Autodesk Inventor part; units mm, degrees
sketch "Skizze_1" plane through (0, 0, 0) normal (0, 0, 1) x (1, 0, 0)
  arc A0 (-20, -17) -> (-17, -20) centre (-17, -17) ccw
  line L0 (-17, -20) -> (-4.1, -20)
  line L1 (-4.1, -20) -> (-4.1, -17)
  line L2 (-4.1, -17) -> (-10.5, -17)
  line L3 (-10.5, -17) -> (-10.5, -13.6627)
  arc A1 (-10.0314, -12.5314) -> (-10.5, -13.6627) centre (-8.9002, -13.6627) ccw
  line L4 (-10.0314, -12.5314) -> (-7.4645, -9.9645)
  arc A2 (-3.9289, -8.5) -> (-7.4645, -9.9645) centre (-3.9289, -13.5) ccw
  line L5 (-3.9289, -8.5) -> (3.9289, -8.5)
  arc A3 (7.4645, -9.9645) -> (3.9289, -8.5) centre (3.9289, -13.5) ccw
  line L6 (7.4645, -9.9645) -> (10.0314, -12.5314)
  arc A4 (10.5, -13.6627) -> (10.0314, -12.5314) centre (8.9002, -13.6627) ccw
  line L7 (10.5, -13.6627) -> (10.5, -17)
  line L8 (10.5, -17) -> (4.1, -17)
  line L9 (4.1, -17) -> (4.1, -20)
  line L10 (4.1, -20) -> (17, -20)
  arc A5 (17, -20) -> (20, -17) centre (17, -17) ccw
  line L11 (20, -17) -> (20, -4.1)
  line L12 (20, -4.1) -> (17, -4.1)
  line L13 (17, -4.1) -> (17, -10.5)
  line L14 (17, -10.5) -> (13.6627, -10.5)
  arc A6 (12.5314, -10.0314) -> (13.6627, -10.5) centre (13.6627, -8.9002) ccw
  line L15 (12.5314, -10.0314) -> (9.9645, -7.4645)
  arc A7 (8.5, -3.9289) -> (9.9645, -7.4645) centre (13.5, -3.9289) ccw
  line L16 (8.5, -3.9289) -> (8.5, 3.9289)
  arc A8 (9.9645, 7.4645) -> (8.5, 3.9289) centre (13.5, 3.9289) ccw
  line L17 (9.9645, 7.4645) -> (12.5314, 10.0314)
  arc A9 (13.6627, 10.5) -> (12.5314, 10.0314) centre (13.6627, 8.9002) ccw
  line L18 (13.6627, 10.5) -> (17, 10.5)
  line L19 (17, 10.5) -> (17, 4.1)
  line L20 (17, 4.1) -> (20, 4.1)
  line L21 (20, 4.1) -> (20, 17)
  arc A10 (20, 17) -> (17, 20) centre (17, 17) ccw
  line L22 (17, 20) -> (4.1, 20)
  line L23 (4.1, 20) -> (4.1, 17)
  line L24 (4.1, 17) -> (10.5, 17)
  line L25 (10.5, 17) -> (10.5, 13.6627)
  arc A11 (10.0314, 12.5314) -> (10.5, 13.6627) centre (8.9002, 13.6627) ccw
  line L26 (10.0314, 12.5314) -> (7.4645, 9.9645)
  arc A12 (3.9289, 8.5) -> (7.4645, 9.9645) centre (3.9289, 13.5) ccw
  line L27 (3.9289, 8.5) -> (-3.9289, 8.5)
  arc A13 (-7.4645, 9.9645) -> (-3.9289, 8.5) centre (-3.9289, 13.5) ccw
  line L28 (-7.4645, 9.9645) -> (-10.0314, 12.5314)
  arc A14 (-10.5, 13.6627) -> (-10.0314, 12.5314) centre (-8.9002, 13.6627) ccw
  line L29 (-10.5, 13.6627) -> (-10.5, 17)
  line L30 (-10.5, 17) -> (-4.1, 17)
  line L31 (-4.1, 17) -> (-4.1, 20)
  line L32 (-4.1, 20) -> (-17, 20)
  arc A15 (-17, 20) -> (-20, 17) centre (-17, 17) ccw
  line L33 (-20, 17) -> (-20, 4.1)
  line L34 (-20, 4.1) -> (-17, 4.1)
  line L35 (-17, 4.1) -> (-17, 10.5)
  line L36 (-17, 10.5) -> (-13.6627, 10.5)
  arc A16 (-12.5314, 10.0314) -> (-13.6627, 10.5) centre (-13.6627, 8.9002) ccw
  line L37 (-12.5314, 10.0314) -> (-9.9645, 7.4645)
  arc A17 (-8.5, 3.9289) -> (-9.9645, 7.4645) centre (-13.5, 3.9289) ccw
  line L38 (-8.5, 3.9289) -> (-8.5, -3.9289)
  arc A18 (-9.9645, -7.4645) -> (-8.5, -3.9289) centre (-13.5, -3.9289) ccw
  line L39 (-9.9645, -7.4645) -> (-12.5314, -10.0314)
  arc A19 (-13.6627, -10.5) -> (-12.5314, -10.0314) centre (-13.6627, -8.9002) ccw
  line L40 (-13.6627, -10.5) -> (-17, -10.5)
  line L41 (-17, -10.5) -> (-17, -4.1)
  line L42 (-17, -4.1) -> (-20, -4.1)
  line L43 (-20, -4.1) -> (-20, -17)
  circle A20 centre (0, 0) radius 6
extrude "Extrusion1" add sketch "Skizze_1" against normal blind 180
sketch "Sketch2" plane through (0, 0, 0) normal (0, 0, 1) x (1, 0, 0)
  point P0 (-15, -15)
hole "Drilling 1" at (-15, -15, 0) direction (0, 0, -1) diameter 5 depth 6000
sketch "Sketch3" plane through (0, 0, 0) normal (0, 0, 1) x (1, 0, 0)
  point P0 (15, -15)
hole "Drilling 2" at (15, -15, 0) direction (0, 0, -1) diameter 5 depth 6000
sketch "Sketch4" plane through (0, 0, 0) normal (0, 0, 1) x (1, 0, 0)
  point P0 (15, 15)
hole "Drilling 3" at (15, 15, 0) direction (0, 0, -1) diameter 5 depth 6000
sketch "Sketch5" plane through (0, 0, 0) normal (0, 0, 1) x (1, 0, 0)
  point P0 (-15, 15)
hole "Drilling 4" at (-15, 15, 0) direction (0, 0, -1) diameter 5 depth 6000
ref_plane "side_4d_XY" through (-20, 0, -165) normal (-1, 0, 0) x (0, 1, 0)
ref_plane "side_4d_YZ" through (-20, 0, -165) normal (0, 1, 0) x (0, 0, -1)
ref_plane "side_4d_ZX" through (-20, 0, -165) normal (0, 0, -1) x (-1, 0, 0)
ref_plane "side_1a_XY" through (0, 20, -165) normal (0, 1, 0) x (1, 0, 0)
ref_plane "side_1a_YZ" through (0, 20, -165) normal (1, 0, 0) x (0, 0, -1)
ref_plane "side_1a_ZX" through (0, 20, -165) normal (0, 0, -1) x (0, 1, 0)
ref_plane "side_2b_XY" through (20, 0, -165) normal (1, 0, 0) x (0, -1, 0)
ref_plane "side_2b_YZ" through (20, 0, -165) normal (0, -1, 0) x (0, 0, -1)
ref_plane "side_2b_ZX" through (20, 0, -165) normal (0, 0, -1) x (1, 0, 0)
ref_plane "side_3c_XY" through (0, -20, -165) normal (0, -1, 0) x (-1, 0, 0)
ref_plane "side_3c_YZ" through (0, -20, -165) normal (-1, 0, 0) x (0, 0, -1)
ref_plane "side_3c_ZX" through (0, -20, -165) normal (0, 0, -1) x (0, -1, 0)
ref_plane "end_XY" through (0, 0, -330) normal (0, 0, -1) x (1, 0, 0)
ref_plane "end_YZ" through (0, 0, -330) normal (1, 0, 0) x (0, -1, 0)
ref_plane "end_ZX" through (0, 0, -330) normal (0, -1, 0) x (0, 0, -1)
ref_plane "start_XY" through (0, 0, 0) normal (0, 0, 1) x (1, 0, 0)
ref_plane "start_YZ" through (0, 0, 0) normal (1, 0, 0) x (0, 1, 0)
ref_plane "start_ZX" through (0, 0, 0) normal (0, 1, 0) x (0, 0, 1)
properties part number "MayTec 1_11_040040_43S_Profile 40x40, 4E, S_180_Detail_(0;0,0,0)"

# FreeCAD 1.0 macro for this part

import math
import FreeCAD as App
import Part
import Sketcher

V = App.Vector

doc = App.newDocument("Part")
body = doc.addObject("PartDesign::Body", "Body")

sketch1 = doc.addObject("Sketcher::SketchObject", "Sketch")
body.addObject(sketch1)
sketch1.AttachmentSupport = (doc.XY_Plane, [""])
sketch1.MapMode = "FlatFace"
sketch1.addGeometry([
    Part.LineSegment(V(-20, -4.1, 0), V(-20, -17, 0)),
    Part.ArcOfCircle(Part.Circle(V(-17, -17, 0), V(0, 0, 1), 3), math.radians(180), math.radians(270)),
    Part.LineSegment(V(-17, -20, 0), V(-4.1, -20, 0)),
    Part.LineSegment(V(-4.1, -20, 0), V(-4.1, -17, 0)),
    Part.LineSegment(V(-4.1, -17, 0), V(-10.5, -17, 0)),
    Part.LineSegment(V(-10.5, -17, 0), V(-10.5, -13.7, 0)),
    Part.ArcOfCircle(Part.Circle(V(-8.9, -13.7, 0), V(0, 0, 1), 1.6), math.radians(135), math.radians(180)),
    Part.LineSegment(V(-10, -12.5, 0), V(-7.5, -10, 0)),
    Part.ArcOfCircle(Part.Circle(V(-3.9, -13.5, 0), V(0, 0, 1), 5), math.radians(90), math.radians(135)),
    Part.LineSegment(V(-3.9, -8.5, 0), V(3.9, -8.5, 0)),
    Part.ArcOfCircle(Part.Circle(V(3.9, -13.5, 0), V(0, 0, 1), 5), math.radians(45), math.radians(90)),
    Part.LineSegment(V(7.5, -10, 0), V(10, -12.5, 0)),
    Part.ArcOfCircle(Part.Circle(V(8.9, -13.7, 0), V(0, 0, 1), 1.6), math.radians(0), math.radians(45)),
    Part.LineSegment(V(10.5, -13.7, 0), V(10.5, -17, 0)),
    Part.LineSegment(V(10.5, -17, 0), V(4.1, -17, 0)),
    Part.LineSegment(V(4.1, -17, 0), V(4.1, -20, 0)),
    Part.LineSegment(V(4.1, -20, 0), V(17, -20, 0)),
    Part.ArcOfCircle(Part.Circle(V(17, -17, 0), V(0, 0, 1), 3), math.radians(-90), math.radians(0)),
    Part.LineSegment(V(20, -17, 0), V(20, -4.1, 0)),
    Part.LineSegment(V(20, -4.1, 0), V(17, -4.1, 0)),
    Part.LineSegment(V(17, -4.1, 0), V(17, -10.5, 0)),
    Part.LineSegment(V(17, -10.5, 0), V(13.7, -10.5, 0)),
    Part.ArcOfCircle(Part.Circle(V(13.7, -8.9, 0), V(0, 0, 1), 1.6), math.radians(-135), math.radians(-90)),
    Part.LineSegment(V(12.5, -10, 0), V(10, -7.5, 0)),
    Part.ArcOfCircle(Part.Circle(V(13.5, -3.9, 0), V(0, 0, 1), 5), math.radians(180), math.radians(225)),
    Part.LineSegment(V(8.5, -3.9, 0), V(8.5, 3.9, 0)),
    Part.ArcOfCircle(Part.Circle(V(13.5, 3.9, 0), V(0, 0, 1), 5), math.radians(135), math.radians(180)),
    Part.LineSegment(V(10, 7.5, 0), V(12.5, 10, 0)),
    Part.ArcOfCircle(Part.Circle(V(13.7, 8.9, 0), V(0, 0, 1), 1.6), math.radians(90), math.radians(135)),
    Part.LineSegment(V(13.7, 10.5, 0), V(17, 10.5, 0)),
    Part.LineSegment(V(17, 10.5, 0), V(17, 4.1, 0)),
    Part.LineSegment(V(17, 4.1, 0), V(20, 4.1, 0)),
    Part.LineSegment(V(20, 4.1, 0), V(20, 17, 0)),
    Part.ArcOfCircle(Part.Circle(V(17, 17, 0), V(0, 0, 1), 3), math.radians(0), math.radians(90)),
    Part.LineSegment(V(17, 20, 0), V(4.1, 20, 0)),
    Part.LineSegment(V(4.1, 20, 0), V(4.1, 17, 0)),
    Part.LineSegment(V(4.1, 17, 0), V(10.5, 17, 0)),
    Part.LineSegment(V(10.5, 17, 0), V(10.5, 13.7, 0)),
    Part.ArcOfCircle(Part.Circle(V(8.9, 13.7, 0), V(0, 0, 1), 1.6), math.radians(-45), math.radians(0)),
    Part.LineSegment(V(10, 12.5, 0), V(7.5, 10, 0)),
    Part.ArcOfCircle(Part.Circle(V(3.9, 13.5, 0), V(0, 0, 1), 5), math.radians(-90), math.radians(-45)),
    Part.LineSegment(V(3.9, 8.5, 0), V(-3.9, 8.5, 0)),
    Part.ArcOfCircle(Part.Circle(V(-3.9, 13.5, 0), V(0, 0, 1), 5), math.radians(-135), math.radians(-90)),
    Part.LineSegment(V(-7.5, 10, 0), V(-10, 12.5, 0)),
    Part.ArcOfCircle(Part.Circle(V(-8.9, 13.7, 0), V(0, 0, 1), 1.6), math.radians(180), math.radians(225)),
    Part.LineSegment(V(-10.5, 13.7, 0), V(-10.5, 17, 0)),
    Part.LineSegment(V(-10.5, 17, 0), V(-4.1, 17, 0)),
    Part.LineSegment(V(-4.1, 17, 0), V(-4.1, 20, 0)),
    Part.LineSegment(V(-4.1, 20, 0), V(-17, 20, 0)),
    Part.ArcOfCircle(Part.Circle(V(-17, 17, 0), V(0, 0, 1), 3), math.radians(90), math.radians(180)),
    Part.LineSegment(V(-20, 17, 0), V(-20, 4.1, 0)),
    Part.LineSegment(V(-20, 4.1, 0), V(-17, 4.1, 0)),
    Part.LineSegment(V(-17, 4.1, 0), V(-17, 10.5, 0)),
    Part.LineSegment(V(-17, 10.5, 0), V(-13.7, 10.5, 0)),
    Part.ArcOfCircle(Part.Circle(V(-13.7, 8.9, 0), V(0, 0, 1), 1.6), math.radians(45), math.radians(90)),
    Part.LineSegment(V(-12.5, 10, 0), V(-10, 7.5, 0)),
    Part.ArcOfCircle(Part.Circle(V(-13.5, 3.9, 0), V(0, 0, 1), 5), math.radians(0), math.radians(45)),
    Part.LineSegment(V(-8.5, 3.9, 0), V(-8.5, -3.9, 0)),
    Part.ArcOfCircle(Part.Circle(V(-13.5, -3.9, 0), V(0, 0, 1), 5), math.radians(-45), math.radians(0)),
    Part.LineSegment(V(-10, -7.5, 0), V(-12.5, -10, 0)),
    Part.ArcOfCircle(Part.Circle(V(-13.7, -8.9, 0), V(0, 0, 1), 1.6), math.radians(-90), math.radians(-45)),
    Part.LineSegment(V(-13.7, -10.5, 0), V(-17, -10.5, 0)),
    Part.LineSegment(V(-17, -10.5, 0), V(-17, -4.1, 0)),
    Part.LineSegment(V(-17, -4.1, 0), V(-20, -4.1, 0)),
    Part.Circle(V(0, 0, 0), V(0, 0, 1), 6),
], False)
sketch1.addConstraint([
    Sketcher.Constraint("Tangent", 0, 2, 1, 1),
    Sketcher.Constraint("Tangent", 1, 2, 2, 1),
    Sketcher.Constraint("Coincident", 2, 2, 3, 1),
    Sketcher.Constraint("Coincident", 3, 2, 4, 1),
    Sketcher.Constraint("Coincident", 4, 2, 5, 1),
    Sketcher.Constraint("Tangent", 5, 2, 6, 2),
    Sketcher.Constraint("Tangent", 6, 1, 7, 1),
    Sketcher.Constraint("Tangent", 7, 2, 8, 2),
    Sketcher.Constraint("Tangent", 8, 1, 9, 1),
    Sketcher.Constraint("Tangent", 9, 2, 10, 2),
    Sketcher.Constraint("Tangent", 10, 1, 11, 1),
    Sketcher.Constraint("Tangent", 11, 2, 12, 2),
    Sketcher.Constraint("Tangent", 12, 1, 13, 1),
    Sketcher.Constraint("Coincident", 13, 2, 14, 1),
    Sketcher.Constraint("Coincident", 14, 2, 15, 1),
    Sketcher.Constraint("Coincident", 15, 2, 16, 1),
    Sketcher.Constraint("Tangent", 16, 2, 17, 1),
    Sketcher.Constraint("Tangent", 17, 2, 18, 1),
    Sketcher.Constraint("Coincident", 18, 2, 19, 1),
    Sketcher.Constraint("Coincident", 19, 2, 20, 1),
    Sketcher.Constraint("Coincident", 20, 2, 21, 1),
    Sketcher.Constraint("Tangent", 21, 2, 22, 2),
    Sketcher.Constraint("Tangent", 22, 1, 23, 1),
    Sketcher.Constraint("Tangent", 23, 2, 24, 2),
    Sketcher.Constraint("Tangent", 24, 1, 25, 1),
    Sketcher.Constraint("Tangent", 25, 2, 26, 2),
    Sketcher.Constraint("Tangent", 26, 1, 27, 1),
    Sketcher.Constraint("Tangent", 27, 2, 28, 2),
    Sketcher.Constraint("Tangent", 28, 1, 29, 1),
    Sketcher.Constraint("Coincident", 29, 2, 30, 1),
    Sketcher.Constraint("Coincident", 30, 2, 31, 1),
    Sketcher.Constraint("Coincident", 31, 2, 32, 1),
    Sketcher.Constraint("Tangent", 32, 2, 33, 1),
    Sketcher.Constraint("Tangent", 33, 2, 34, 1),
    Sketcher.Constraint("Coincident", 34, 2, 35, 1),
    Sketcher.Constraint("Coincident", 35, 2, 36, 1),
    Sketcher.Constraint("Coincident", 36, 2, 37, 1),
    Sketcher.Constraint("Tangent", 37, 2, 38, 2),
    Sketcher.Constraint("Tangent", 38, 1, 39, 1),
    Sketcher.Constraint("Tangent", 39, 2, 40, 2),
    Sketcher.Constraint("Tangent", 40, 1, 41, 1),
    Sketcher.Constraint("Tangent", 41, 2, 42, 2),
    Sketcher.Constraint("Tangent", 42, 1, 43, 1),
    Sketcher.Constraint("Tangent", 43, 2, 44, 2),
    Sketcher.Constraint("Tangent", 44, 1, 45, 1),
    Sketcher.Constraint("Coincident", 45, 2, 46, 1),
    Sketcher.Constraint("Coincident", 46, 2, 47, 1),
    Sketcher.Constraint("Coincident", 47, 2, 48, 1),
    Sketcher.Constraint("Tangent", 48, 2, 49, 1),
    Sketcher.Constraint("Tangent", 49, 2, 50, 1),
    Sketcher.Constraint("Coincident", 50, 2, 51, 1),
    Sketcher.Constraint("Coincident", 51, 2, 52, 1),
    Sketcher.Constraint("Coincident", 52, 2, 53, 1),
    Sketcher.Constraint("Tangent", 53, 2, 54, 2),
    Sketcher.Constraint("Tangent", 54, 1, 55, 1),
    Sketcher.Constraint("Tangent", 55, 2, 56, 2),
    Sketcher.Constraint("Tangent", 56, 1, 57, 1),
    Sketcher.Constraint("Tangent", 57, 2, 58, 2),
    Sketcher.Constraint("Tangent", 58, 1, 59, 1),
    Sketcher.Constraint("Tangent", 59, 2, 60, 2),
    Sketcher.Constraint("Tangent", 60, 1, 61, 1),
    Sketcher.Constraint("Coincident", 61, 2, 62, 1),
    Sketcher.Constraint("Coincident", 62, 2, 63, 1),
    Sketcher.Constraint("Coincident", 63, 2, 0, 1),
    Sketcher.Constraint("Vertical", 0),
    Sketcher.Constraint("Horizontal", 2),
    Sketcher.Constraint("Vertical", 3),
    Sketcher.Constraint("Horizontal", 4),
    Sketcher.Constraint("Vertical", 5),
    Sketcher.Constraint("Horizontal", 9),
    Sketcher.Constraint("Vertical", 13),
    Sketcher.Constraint("Horizontal", 14),
    Sketcher.Constraint("Vertical", 15),
    Sketcher.Constraint("Horizontal", 16),
    Sketcher.Constraint("Vertical", 18),
    Sketcher.Constraint("Horizontal", 19),
    Sketcher.Constraint("Vertical", 20),
    Sketcher.Constraint("Horizontal", 21),
    Sketcher.Constraint("Vertical", 25),
    Sketcher.Constraint("Horizontal", 29),
    Sketcher.Constraint("Vertical", 30),
    Sketcher.Constraint("Horizontal", 31),
    Sketcher.Constraint("Vertical", 32),
    Sketcher.Constraint("Horizontal", 34),
    Sketcher.Constraint("Vertical", 35),
    Sketcher.Constraint("Horizontal", 36),
    Sketcher.Constraint("Vertical", 37),
    Sketcher.Constraint("Horizontal", 41),
    Sketcher.Constraint("Vertical", 45),
    Sketcher.Constraint("Horizontal", 46),
    Sketcher.Constraint("Vertical", 47),
    Sketcher.Constraint("Horizontal", 48),
    Sketcher.Constraint("Vertical", 50),
    Sketcher.Constraint("Horizontal", 51),
    Sketcher.Constraint("Vertical", 52),
    Sketcher.Constraint("Horizontal", 53),
    Sketcher.Constraint("Vertical", 57),
    Sketcher.Constraint("Horizontal", 61),
    Sketcher.Constraint("Vertical", 62),
    Sketcher.Constraint("Horizontal", 63),
    Sketcher.Constraint("Coincident", 64, 3, -1, 1),
    Sketcher.Constraint("Equal", 8, 10),
    Sketcher.Constraint("Equal", 6, 12),
    Sketcher.Constraint("Equal", 1, 17),
    Sketcher.Constraint("Equal", 12, 22),
    Sketcher.Constraint("Equal", 10, 24),
    Sketcher.Constraint("Equal", 24, 26),
    Sketcher.Constraint("Equal", 22, 28),
    Sketcher.Constraint("Equal", 17, 33),
    Sketcher.Constraint("Equal", 28, 38),
    Sketcher.Constraint("Equal", 26, 40),
    Sketcher.Constraint("Equal", 40, 42),
    Sketcher.Constraint("Equal", 38, 44),
    Sketcher.Constraint("Equal", 33, 49),
    Sketcher.Constraint("Equal", 44, 54),
    Sketcher.Constraint("Equal", 42, 56),
    Sketcher.Constraint("Equal", 56, 58),
    Sketcher.Constraint("Equal", 54, 60),
    Sketcher.Constraint("Symmetric", 1, 3, 33, 3, -1, 1),
    Sketcher.Constraint("Symmetric", 6, 3, 38, 3, -1, 1),
    Sketcher.Constraint("Symmetric", 8, 3, 40, 3, -1, 1),
    Sketcher.Constraint("Symmetric", 12, 3, 44, 3, -1, 1),
    Sketcher.Constraint("Symmetric", 17, 3, 49, 3, -1, 1),
    Sketcher.Constraint("Symmetric", 22, 3, 54, 3, -1, 1),
    Sketcher.Constraint("Symmetric", 24, 3, 56, 3, -1, 1),
    Sketcher.Constraint("Symmetric", 28, 3, 60, 3, -1, 1),
    Sketcher.Constraint("Symmetric", 3, 2, 35, 2, -1, 1),
    Sketcher.Constraint("Symmetric", 14, 2, 46, 2, -1, 1),
    Sketcher.Constraint("Symmetric", 19, 2, 51, 2, -1, 1),
    Sketcher.Constraint("Symmetric", 30, 2, 62, 2, -1, 1),
    Sketcher.Constraint("Symmetric", 6, 3, 12, 3, -2),
    Sketcher.Constraint("Symmetric", 1, 3, 17, 3, -2),
    Sketcher.Constraint("Symmetric", 28, 3, 54, 3, -2),
    Sketcher.Constraint("Symmetric", 3, 2, 14, 2, -2),
    Sketcher.Constraint("Symmetric", 30, 2, 51, 2, -2),
    Sketcher.Constraint("Perpendicular", 7, 11),
    Sketcher.Constraint("Parallel", 11, 23),
    Sketcher.Constraint("Perpendicular", 23, 27),
    Sketcher.Constraint("Perpendicular", 39, 43),
    Sketcher.Constraint("Perpendicular", 55, 59),
    Sketcher.Constraint("Horizontal", 26, 3, 56, 3),
    Sketcher.Constraint("Horizontal", 0, 2, 3, 2),
    Sketcher.Constraint("Vertical", 16, 2, 19, 2),
    Sketcher.Constraint("Equal", 48, 0),
    Sketcher.Constraint("Equal", 61, 5),
    Sketcher.Constraint("Equal", 46, 20),
    Sketcher.Constraint("Equal", 41, 25),
    Sketcher.Constraint("Equal", 11, 23),
    Sketcher.Constraint("Diameter", 64, 12.0),
    Sketcher.Constraint("Radius", 1, 3.0),
    Sketcher.Constraint("Radius", 8, 5.0),
    Sketcher.Constraint("DistanceX", 2, 1, 2, 2, 12.9),
    Sketcher.Constraint("DistanceX", 4, 2, 4, 1, 6.4),
    Sketcher.Constraint("DistanceX", 1, 3, -1, 1, 17.0),
    Sketcher.Constraint("DistanceY", 8, 3, -1, 1, 13.5),
    Sketcher.Constraint("Radius", 6, 1.5998),
    Sketcher.Constraint("DistanceX", 9, 1, 9, 2, 7.8578),
])
pad1 = doc.addObject("PartDesign::Pad", "Pad")
body.addObject(pad1)
pad1.Profile = sketch1
pad1.Length = 180
pad1.Reversed = True

sketch2 = doc.addObject("Sketcher::SketchObject", "Sketch001")
body.addObject(sketch2)
sketch2.AttachmentSupport = (doc.XY_Plane, [""])
sketch2.MapMode = "FlatFace"
sketch2.addGeometry(Part.Circle(V(-15, -15, 0), V(0, 0, 1), 2.5), False)
sketch2.addConstraint([
    Sketcher.Constraint("Diameter", 0, 5.0),
    Sketcher.Constraint("DistanceX", 0, 3, -1, 1, 15.0),
    Sketcher.Constraint("DistanceY", 0, 3, -1, 1, 15.0),
])
doc.recompute()
hole = doc.addObject("PartDesign::Hole", "Hole")
body.addObject(hole)
hole.Profile = sketch2
hole.ThreadType = "None"
hole.Diameter = 5
hole.DepthType = "Dimension"
hole.Depth = 6000
hole.DrillPoint = "Flat"

sketch3 = doc.addObject("Sketcher::SketchObject", "Sketch002")
body.addObject(sketch3)
sketch3.AttachmentSupport = (doc.XY_Plane, [""])
sketch3.MapMode = "FlatFace"
sketch3.addGeometry(Part.Circle(V(15, -15, 0), V(0, 0, 1), 2.5), False)
sketch3.addConstraint([
    Sketcher.Constraint("Diameter", 0, 5.0),
    Sketcher.Constraint("DistanceX", -1, 1, 0, 3, 15.0),
    Sketcher.Constraint("DistanceY", 0, 3, -1, 1, 15.0),
])
doc.recompute()
hole2 = doc.addObject("PartDesign::Hole", "Hole001")
body.addObject(hole2)
hole2.Profile = sketch3
hole2.ThreadType = "None"
hole2.Diameter = 5
hole2.DepthType = "Dimension"
hole2.Depth = 6000
hole2.DrillPoint = "Flat"

sketch4 = doc.addObject("Sketcher::SketchObject", "Sketch003")
body.addObject(sketch4)
sketch4.AttachmentSupport = (doc.XY_Plane, [""])
sketch4.MapMode = "FlatFace"
sketch4.addGeometry(Part.Circle(V(15, 15, 0), V(0, 0, 1), 2.5), False)
sketch4.addConstraint([
    Sketcher.Constraint("Diameter", 0, 5.0),
    Sketcher.Constraint("DistanceX", -1, 1, 0, 3, 15.0),
    Sketcher.Constraint("DistanceY", -1, 1, 0, 3, 15.0),
])
doc.recompute()
hole3 = doc.addObject("PartDesign::Hole", "Hole002")
body.addObject(hole3)
hole3.Profile = sketch4
hole3.ThreadType = "None"
hole3.Diameter = 5
hole3.DepthType = "Dimension"
hole3.Depth = 6000
hole3.DrillPoint = "Flat"

sketch5 = doc.addObject("Sketcher::SketchObject", "Sketch004")
body.addObject(sketch5)
sketch5.AttachmentSupport = (doc.XY_Plane, [""])
sketch5.MapMode = "FlatFace"
sketch5.addGeometry(Part.Circle(V(-15, 15, 0), V(0, 0, 1), 2.5), False)
sketch5.addConstraint([
    Sketcher.Constraint("Diameter", 0, 5.0),
    Sketcher.Constraint("DistanceX", 0, 3, -1, 1, 15.0),
    Sketcher.Constraint("DistanceY", -1, 1, 0, 3, 15.0),
])
doc.recompute()
hole4 = doc.addObject("PartDesign::Hole", "Hole003")
body.addObject(hole4)
hole4.Profile = sketch5
hole4.ThreadType = "None"
hole4.Diameter = 5
hole4.DepthType = "Dimension"
hole4.Depth = 6000
hole4.DrillPoint = "Flat"

doc.recompute()
